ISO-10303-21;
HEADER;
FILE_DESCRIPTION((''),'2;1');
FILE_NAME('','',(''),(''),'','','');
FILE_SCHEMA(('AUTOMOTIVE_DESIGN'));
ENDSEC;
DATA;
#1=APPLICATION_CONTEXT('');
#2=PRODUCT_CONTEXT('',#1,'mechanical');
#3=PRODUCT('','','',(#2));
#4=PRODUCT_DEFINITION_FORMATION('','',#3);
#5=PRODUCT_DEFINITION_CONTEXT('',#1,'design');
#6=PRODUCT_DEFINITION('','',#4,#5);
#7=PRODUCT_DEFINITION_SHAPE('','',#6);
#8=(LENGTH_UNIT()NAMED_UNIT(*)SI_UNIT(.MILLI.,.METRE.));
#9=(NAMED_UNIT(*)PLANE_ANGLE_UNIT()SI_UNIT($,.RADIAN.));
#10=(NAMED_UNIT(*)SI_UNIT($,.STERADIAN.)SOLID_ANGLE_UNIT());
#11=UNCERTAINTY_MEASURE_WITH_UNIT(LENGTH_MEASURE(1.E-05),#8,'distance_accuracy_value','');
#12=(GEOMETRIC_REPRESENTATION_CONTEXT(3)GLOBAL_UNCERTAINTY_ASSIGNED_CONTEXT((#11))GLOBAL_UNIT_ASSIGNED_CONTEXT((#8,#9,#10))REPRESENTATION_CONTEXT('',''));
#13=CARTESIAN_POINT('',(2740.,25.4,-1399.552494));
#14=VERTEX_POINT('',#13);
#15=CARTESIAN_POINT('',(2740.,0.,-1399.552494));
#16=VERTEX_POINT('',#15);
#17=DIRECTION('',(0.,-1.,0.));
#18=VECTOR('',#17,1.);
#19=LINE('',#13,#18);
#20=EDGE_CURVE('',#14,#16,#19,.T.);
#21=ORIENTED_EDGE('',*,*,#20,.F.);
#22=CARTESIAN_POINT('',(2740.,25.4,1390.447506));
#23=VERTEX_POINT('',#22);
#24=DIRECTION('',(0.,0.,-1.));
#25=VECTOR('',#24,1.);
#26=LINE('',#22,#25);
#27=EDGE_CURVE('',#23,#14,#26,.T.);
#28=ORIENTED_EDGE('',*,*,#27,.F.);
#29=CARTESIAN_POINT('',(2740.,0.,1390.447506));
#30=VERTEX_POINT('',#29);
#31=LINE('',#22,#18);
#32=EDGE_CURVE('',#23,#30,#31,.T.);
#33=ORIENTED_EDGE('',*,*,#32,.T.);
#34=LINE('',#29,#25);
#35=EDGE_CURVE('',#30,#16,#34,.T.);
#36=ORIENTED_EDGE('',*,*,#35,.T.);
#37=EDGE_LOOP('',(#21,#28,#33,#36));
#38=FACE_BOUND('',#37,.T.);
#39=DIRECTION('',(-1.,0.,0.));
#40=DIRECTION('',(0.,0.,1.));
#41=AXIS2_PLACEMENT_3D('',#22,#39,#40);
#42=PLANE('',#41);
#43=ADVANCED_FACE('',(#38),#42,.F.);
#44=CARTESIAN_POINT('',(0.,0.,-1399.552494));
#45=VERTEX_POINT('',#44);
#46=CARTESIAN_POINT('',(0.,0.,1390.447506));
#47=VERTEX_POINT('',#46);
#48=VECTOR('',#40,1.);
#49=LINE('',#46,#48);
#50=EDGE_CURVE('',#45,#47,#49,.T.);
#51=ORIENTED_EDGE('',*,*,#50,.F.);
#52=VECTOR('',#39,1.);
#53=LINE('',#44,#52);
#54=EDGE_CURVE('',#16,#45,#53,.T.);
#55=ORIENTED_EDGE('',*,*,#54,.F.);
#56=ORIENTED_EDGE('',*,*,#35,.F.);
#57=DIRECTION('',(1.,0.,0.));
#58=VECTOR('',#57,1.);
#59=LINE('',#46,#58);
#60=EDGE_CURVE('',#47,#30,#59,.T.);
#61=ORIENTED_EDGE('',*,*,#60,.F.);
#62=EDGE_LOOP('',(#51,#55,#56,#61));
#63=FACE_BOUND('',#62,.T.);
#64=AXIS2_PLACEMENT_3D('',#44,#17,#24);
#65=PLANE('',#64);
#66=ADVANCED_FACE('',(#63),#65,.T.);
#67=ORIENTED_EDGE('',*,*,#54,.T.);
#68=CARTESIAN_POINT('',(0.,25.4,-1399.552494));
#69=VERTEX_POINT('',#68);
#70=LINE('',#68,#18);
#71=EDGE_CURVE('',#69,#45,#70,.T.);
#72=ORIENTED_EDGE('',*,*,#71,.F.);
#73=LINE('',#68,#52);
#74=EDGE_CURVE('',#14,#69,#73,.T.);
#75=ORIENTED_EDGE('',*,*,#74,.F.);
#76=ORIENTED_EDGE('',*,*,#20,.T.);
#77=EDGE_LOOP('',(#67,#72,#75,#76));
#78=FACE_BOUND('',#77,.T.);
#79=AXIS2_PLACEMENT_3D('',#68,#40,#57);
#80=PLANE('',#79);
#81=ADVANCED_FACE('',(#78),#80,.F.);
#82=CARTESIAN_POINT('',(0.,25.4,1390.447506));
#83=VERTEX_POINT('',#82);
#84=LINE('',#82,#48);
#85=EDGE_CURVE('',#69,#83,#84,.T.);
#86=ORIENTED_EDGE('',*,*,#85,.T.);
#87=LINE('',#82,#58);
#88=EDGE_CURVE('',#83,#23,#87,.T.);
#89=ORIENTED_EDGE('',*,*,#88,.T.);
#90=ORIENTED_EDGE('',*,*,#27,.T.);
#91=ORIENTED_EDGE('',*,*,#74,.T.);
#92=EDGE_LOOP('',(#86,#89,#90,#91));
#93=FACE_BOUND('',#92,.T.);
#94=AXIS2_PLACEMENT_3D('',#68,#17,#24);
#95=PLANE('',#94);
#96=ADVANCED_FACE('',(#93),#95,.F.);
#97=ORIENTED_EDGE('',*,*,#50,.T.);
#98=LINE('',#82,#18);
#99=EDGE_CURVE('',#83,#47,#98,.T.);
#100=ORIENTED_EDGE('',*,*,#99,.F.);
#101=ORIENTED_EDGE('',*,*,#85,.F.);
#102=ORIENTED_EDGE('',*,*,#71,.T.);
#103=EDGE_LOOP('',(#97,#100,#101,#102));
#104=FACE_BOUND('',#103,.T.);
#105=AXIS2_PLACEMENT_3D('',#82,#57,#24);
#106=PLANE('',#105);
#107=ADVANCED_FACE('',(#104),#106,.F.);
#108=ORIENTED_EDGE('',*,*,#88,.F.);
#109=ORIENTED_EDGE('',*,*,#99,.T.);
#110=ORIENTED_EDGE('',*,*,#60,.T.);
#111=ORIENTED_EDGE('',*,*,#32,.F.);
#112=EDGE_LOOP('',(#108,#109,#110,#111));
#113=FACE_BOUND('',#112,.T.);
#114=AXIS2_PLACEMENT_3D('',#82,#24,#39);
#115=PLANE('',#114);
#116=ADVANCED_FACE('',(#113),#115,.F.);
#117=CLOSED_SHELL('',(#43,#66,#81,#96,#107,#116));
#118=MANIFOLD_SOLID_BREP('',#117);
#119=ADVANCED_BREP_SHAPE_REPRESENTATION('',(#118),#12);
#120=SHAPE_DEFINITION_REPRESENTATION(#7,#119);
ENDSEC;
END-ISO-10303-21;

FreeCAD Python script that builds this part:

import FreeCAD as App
import Part
import Sketcher
from FreeCAD import Vector
Q = App.Units.Quantity

doc = App.newDocument("Part")
body = doc.addObject("PartDesign::Body", "Body")

sketch1 = body.newObject("Sketcher::SketchObject", "Sketch")
sketch1.AttachmentSupport = (doc.getObject("XZ_Plane"), [""])
sketch1.MapMode = "FlatFace"
sketch1.addGeometry(Part.LineSegment(Vector(0, -1400, 0), Vector(0, 1390, 0)), False)
sketch1.addGeometry(Part.LineSegment(Vector(0, 1390, 0), Vector(2740, 1390, 0)), False)
sketch1.addGeometry(Part.LineSegment(Vector(2740, 1390, 0), Vector(2740, -1400, 0)), False)
sketch1.addGeometry(Part.LineSegment(Vector(2740, -1400, 0), Vector(0, -1400, 0)), False)
sketch1.addConstraint(Sketcher.Constraint("Coincident", 0, 2, 1, 1))
sketch1.addConstraint(Sketcher.Constraint("Coincident", 1, 2, 2, 1))
sketch1.addConstraint(Sketcher.Constraint("Coincident", 2, 2, 3, 1))
sketch1.addConstraint(Sketcher.Constraint("Coincident", 3, 2, 0, 1))
sketch1.addConstraint(Sketcher.Constraint("Vertical", 0))
sketch1.addConstraint(Sketcher.Constraint("Horizontal", 1))
sketch1.addConstraint(Sketcher.Constraint("Vertical", 2))
sketch1.addConstraint(Sketcher.Constraint("Horizontal", 3))
sketch1.addConstraint(Sketcher.Constraint("PointOnObject", 0, 2, -2))
sketch1.addConstraint(Sketcher.Constraint("DistanceX", 1, 1, 1, 2, Q("2740 mm")))
sketch1.addConstraint(Sketcher.Constraint("DistanceY", 0, 1, 0, 2, Q("2790 mm")))
sketch1.addConstraint(Sketcher.Constraint("DistanceY", -1, 1, 0, 2, Q("1390.447506 mm")))
pad1 = body.newObject("PartDesign::Pad", "Pad")
pad1.Profile = sketch1
pad1.Length = 25.4
pad1.Reversed = True

doc.recompute()
